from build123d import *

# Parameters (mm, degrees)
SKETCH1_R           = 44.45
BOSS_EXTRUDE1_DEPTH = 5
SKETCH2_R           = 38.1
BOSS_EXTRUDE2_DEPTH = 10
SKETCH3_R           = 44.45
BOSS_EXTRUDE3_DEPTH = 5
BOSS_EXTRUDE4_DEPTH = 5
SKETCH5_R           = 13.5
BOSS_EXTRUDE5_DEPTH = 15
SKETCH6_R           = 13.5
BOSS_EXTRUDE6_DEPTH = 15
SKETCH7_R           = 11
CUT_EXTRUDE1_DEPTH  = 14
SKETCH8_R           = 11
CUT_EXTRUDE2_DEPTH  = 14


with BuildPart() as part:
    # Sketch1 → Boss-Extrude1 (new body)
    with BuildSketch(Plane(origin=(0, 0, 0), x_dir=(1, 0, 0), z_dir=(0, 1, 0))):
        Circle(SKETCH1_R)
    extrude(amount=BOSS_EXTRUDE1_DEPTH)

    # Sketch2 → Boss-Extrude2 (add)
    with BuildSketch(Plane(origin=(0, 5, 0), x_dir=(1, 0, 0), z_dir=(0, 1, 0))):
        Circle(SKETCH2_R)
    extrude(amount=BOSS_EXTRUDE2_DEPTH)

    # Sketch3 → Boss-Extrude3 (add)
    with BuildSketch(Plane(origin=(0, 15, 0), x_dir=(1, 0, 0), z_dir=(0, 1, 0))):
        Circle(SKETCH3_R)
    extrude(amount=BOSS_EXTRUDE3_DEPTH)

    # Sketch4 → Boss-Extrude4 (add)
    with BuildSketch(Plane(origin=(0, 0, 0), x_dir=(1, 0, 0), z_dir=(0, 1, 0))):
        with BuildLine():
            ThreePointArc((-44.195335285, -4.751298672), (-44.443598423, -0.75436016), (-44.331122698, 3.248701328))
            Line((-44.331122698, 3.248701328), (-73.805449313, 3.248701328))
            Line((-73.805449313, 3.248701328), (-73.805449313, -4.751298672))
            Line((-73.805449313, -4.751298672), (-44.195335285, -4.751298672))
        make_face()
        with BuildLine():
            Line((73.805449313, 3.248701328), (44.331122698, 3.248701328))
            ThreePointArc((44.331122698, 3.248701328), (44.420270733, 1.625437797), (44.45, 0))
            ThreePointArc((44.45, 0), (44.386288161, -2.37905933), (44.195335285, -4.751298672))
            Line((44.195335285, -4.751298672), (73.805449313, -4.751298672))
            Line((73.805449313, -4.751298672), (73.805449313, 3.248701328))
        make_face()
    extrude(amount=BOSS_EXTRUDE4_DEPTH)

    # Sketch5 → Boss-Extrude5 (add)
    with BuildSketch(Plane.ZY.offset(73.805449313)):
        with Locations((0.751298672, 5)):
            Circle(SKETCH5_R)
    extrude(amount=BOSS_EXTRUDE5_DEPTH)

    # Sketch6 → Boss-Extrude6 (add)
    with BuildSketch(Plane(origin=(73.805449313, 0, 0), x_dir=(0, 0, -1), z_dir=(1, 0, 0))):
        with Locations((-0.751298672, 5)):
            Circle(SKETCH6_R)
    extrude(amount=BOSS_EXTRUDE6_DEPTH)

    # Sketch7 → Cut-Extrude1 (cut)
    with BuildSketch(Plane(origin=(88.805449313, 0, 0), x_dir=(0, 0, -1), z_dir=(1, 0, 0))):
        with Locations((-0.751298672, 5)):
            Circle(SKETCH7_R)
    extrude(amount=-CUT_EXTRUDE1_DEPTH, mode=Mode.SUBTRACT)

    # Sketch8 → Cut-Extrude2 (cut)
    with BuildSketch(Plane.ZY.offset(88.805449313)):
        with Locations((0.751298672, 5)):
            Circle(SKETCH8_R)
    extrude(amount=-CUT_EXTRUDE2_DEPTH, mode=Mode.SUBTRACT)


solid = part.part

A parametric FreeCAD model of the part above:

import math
import FreeCAD as App
import Part
import Sketcher
from FreeCAD import Vector
Q = App.Units.Quantity

doc = App.newDocument("Part")
body = doc.addObject("PartDesign::Body", "Body")

# Sketch on XZ plane
sketch1 = body.newObject("Sketcher::SketchObject", "Sketch")
sketch1.AttachmentSupport = (doc.getObject("XZ_Plane"), [""])
sketch1.MapMode = "FlatFace"
sketch1.addGeometry(Part.Circle(Vector(0, 0, 0), Vector(0, 0, 1), 44), False)
sketch1.addConstraint(Sketcher.Constraint("Coincident", 0, 3, -1, 1))
sketch1.addConstraint(Sketcher.Constraint("Diameter", 0, Q("88.9 mm")))
pad1 = body.newObject("PartDesign::Pad", "Pad")
pad1.Profile = sketch1
pad1.Length = 5
pad1.Reversed = True

# Sketch on XZ plane
sketch2 = body.newObject("Sketcher::SketchObject", "Sketch001")
sketch2.AttachmentSupport = (doc.getObject("XZ_Plane"), [""])
sketch2.MapMode = "FlatFace"
sketch2.AttachmentOffset = App.Placement(Vector(0, 0, -5), App.Rotation())
sketch2.addGeometry(Part.Circle(Vector(0, 0, 0), Vector(0, 0, 1), 38), False)
sketch2.addConstraint(Sketcher.Constraint("Coincident", 0, 3, -1, 1))
sketch2.addConstraint(Sketcher.Constraint("Diameter", 0, Q("76.2 mm")))
pad2 = body.newObject("PartDesign::Pad", "Pad001")
pad2.Profile = sketch2
pad2.Length = 10
pad2.Reversed = True

# Sketch on XZ plane
sketch3 = body.newObject("Sketcher::SketchObject", "Sketch002")
sketch3.AttachmentSupport = (doc.getObject("XZ_Plane"), [""])
sketch3.MapMode = "FlatFace"
sketch3.AttachmentOffset = App.Placement(Vector(0, 0, -15), App.Rotation())
sketch3.addGeometry(Part.Circle(Vector(0, 0, 0), Vector(0, 0, 1), 44), False)
sketch3.addConstraint(Sketcher.Constraint("Coincident", 0, 3, -1, 1))
sketch3.addConstraint(Sketcher.Constraint("Diameter", 0, Q("88.9 mm")))
pad3 = body.newObject("PartDesign::Pad", "Pad002")
pad3.Profile = sketch3
pad3.Length = 5
pad3.Reversed = True

# Sketch on XZ plane
sketch4 = body.newObject("Sketcher::SketchObject", "Sketch003")
sketch4.AttachmentSupport = (doc.getObject("XZ_Plane"), [""])
sketch4.MapMode = "FlatFace"
sketch4.addGeometry(Part.ArcOfCircle(Part.Circle(Vector(0, 0, 0), Vector(0, 0, 1), 44.4), math.radians(173.86), math.radians(184.19)), False)
sketch4.addGeometry(Part.LineSegment(Vector(-44.3, -3.2, 0), Vector(-73.8, -3.2, 0)), False)
sketch4.addGeometry(Part.LineSegment(Vector(-73.8, -3.2, 0), Vector(-73.8, 4.8, 0)), False)
sketch4.addGeometry(Part.LineSegment(Vector(-73.8, 4.8, 0), Vector(-44.2, 4.8, 0)), False)
sketch4.addGeometry(Part.LineSegment(Vector(73.8, -3.2, 0), Vector(44.3, -3.2, 0)), False)
sketch4.addGeometry(Part.ArcOfCircle(Part.Circle(Vector(0, 0, 0), Vector(0, 0, 1), 44.4), math.radians(-4.19), math.radians(0)), False)
sketch4.addGeometry(Part.ArcOfCircle(Part.Circle(Vector(0, 0, 0), Vector(0, 0, 1), 44.5), math.radians(0), math.radians(6.14)), False)
sketch4.addGeometry(Part.LineSegment(Vector(44.2, 4.8, 0), Vector(73.8, 4.8, 0)), False)
sketch4.addGeometry(Part.LineSegment(Vector(73.8, 4.8, 0), Vector(73.8, -3.2, 0)), False)
sketch4.addConstraint(Sketcher.Constraint("Coincident", 0, 2, 1, 1))
sketch4.addConstraint(Sketcher.Constraint("Coincident", 1, 2, 2, 1))
sketch4.addConstraint(Sketcher.Constraint("Coincident", 2, 2, 3, 1))
sketch4.addConstraint(Sketcher.Constraint("Coincident", 3, 2, 0, 1))
sketch4.addConstraint(Sketcher.Constraint("Coincident", 4, 2, 5, 1))
sketch4.addConstraint(Sketcher.Constraint("Tangent", 5, 2, 6, 1))
sketch4.addConstraint(Sketcher.Constraint("Coincident", 6, 2, 7, 1))
sketch4.addConstraint(Sketcher.Constraint("Coincident", 7, 2, 8, 1))
sketch4.addConstraint(Sketcher.Constraint("Coincident", 8, 2, 4, 1))
sketch4.addConstraint(Sketcher.Constraint("Horizontal", 1))
sketch4.addConstraint(Sketcher.Constraint("Vertical", 2))
sketch4.addConstraint(Sketcher.Constraint("Horizontal", 3))
sketch4.addConstraint(Sketcher.Constraint("Horizontal", 4))
sketch4.addConstraint(Sketcher.Constraint("Horizontal", 7))
sketch4.addConstraint(Sketcher.Constraint("Vertical", 8))
sketch4.addConstraint(Sketcher.Constraint("Coincident", 0, 3, -1, 1))
sketch4.addConstraint(Sketcher.Constraint("Coincident", 5, 3, -1, 1))
sketch4.addConstraint(Sketcher.Constraint("Equal", 0, 5))
sketch4.addConstraint(Sketcher.Constraint("Equal", 5, 6))
sketch4.addConstraint(Sketcher.Constraint("Symmetric", 2, 2, 7, 2, -2))
sketch4.addConstraint(Sketcher.Constraint("PointOnObject", 5, 2, -1))
sketch4.addConstraint(Sketcher.Constraint("Horizontal", 1, 2, 4, 2))
sketch4.addConstraint(Sketcher.Constraint("DistanceY", 2, 1, 2, 2, Q("8 mm")))
sketch4.addConstraint(Sketcher.Constraint("Radius", 0, Q("44.45 mm")))
sketch4.addConstraint(Sketcher.Constraint("DistanceY", 0, 2, -1, 1, Q("3.248701 mm")))
sketch4.addConstraint(Sketcher.Constraint("DistanceX", 1, 2, 1, 1, Q("29.474327 mm")))
pad4 = body.newObject("PartDesign::Pad", "Pad003")
pad4.Profile = sketch4
pad4.Length = 5
pad4.Reversed = True

# Sketch on YZ plane
sketch5 = body.newObject("Sketcher::SketchObject", "Sketch004")
sketch5.AttachmentSupport = (doc.getObject("YZ_Plane"), [""])
sketch5.MapMode = "FlatFace"
sketch5.AttachmentOffset = App.Placement(Vector(0, 0, -73.805449), App.Rotation())
sketch5.addGeometry(Part.Circle(Vector(5, 1, 0), Vector(0, 0, 1), 14), False)
sketch5.addConstraint(Sketcher.Constraint("Diameter", 0, Q("27 mm")))
sketch5.addConstraint(Sketcher.Constraint("DistanceX", -1, 1, 0, 3, Q("5 mm")))
sketch5.addConstraint(Sketcher.Constraint("DistanceY", -1, 1, 0, 3, Q("0.751299 mm")))
pad5 = body.newObject("PartDesign::Pad", "Pad004")
pad5.Profile = sketch5
pad5.Length = 15
pad5.Reversed = True

# Sketch on YZ plane
sketch6 = body.newObject("Sketcher::SketchObject", "Sketch005")
sketch6.AttachmentSupport = (doc.getObject("YZ_Plane"), [""])
sketch6.MapMode = "FlatFace"
sketch6.AttachmentOffset = App.Placement(Vector(0, 0, 73.805449), App.Rotation())
sketch6.addGeometry(Part.Circle(Vector(5, 1, 0), Vector(0, 0, 1), 14), False)
sketch6.addConstraint(Sketcher.Constraint("Diameter", 0, Q("27 mm")))
sketch6.addConstraint(Sketcher.Constraint("DistanceX", -1, 1, 0, 3, Q("5 mm")))
sketch6.addConstraint(Sketcher.Constraint("DistanceY", -1, 1, 0, 3, Q("0.751299 mm")))
pad6 = body.newObject("PartDesign::Pad", "Pad005")
pad6.Profile = sketch6
pad6.Length = 15

# Sketch on YZ plane
sketch7 = body.newObject("Sketcher::SketchObject", "Sketch006")
sketch7.AttachmentSupport = (doc.getObject("YZ_Plane"), [""])
sketch7.MapMode = "FlatFace"
sketch7.AttachmentOffset = App.Placement(Vector(0, 0, 88.805449), App.Rotation())
sketch7.addGeometry(Part.Circle(Vector(5, 1, 0), Vector(0, 0, 1), 11), False)
sketch7.addConstraint(Sketcher.Constraint("Diameter", 0, Q("22 mm")))
sketch7.addConstraint(Sketcher.Constraint("DistanceX", -1, 1, 0, 3, Q("5 mm")))
sketch7.addConstraint(Sketcher.Constraint("DistanceY", -1, 1, 0, 3, Q("0.751299 mm")))
pocket1 = body.newObject("PartDesign::Pocket", "Pocket")
pocket1.Profile = sketch7
pocket1.Length = 14

# Sketch on YZ plane
sketch8 = body.newObject("Sketcher::SketchObject", "Sketch007")
sketch8.AttachmentSupport = (doc.getObject("YZ_Plane"), [""])
sketch8.MapMode = "FlatFace"
sketch8.AttachmentOffset = App.Placement(Vector(0, 0, -88.805449), App.Rotation())
sketch8.addGeometry(Part.Circle(Vector(5, 1, 0), Vector(0, 0, 1), 11), False)
sketch8.addConstraint(Sketcher.Constraint("Diameter", 0, Q("22 mm")))
sketch8.addConstraint(Sketcher.Constraint("DistanceX", -1, 1, 0, 3, Q("5 mm")))
sketch8.addConstraint(Sketcher.Constraint("DistanceY", -1, 1, 0, 3, Q("0.751299 mm")))
pocket2 = body.newObject("PartDesign::Pocket", "Pocket001")
pocket2.Profile = sketch8
pocket2.Length = 14
pocket2.Reversed = True

doc.recompute()
